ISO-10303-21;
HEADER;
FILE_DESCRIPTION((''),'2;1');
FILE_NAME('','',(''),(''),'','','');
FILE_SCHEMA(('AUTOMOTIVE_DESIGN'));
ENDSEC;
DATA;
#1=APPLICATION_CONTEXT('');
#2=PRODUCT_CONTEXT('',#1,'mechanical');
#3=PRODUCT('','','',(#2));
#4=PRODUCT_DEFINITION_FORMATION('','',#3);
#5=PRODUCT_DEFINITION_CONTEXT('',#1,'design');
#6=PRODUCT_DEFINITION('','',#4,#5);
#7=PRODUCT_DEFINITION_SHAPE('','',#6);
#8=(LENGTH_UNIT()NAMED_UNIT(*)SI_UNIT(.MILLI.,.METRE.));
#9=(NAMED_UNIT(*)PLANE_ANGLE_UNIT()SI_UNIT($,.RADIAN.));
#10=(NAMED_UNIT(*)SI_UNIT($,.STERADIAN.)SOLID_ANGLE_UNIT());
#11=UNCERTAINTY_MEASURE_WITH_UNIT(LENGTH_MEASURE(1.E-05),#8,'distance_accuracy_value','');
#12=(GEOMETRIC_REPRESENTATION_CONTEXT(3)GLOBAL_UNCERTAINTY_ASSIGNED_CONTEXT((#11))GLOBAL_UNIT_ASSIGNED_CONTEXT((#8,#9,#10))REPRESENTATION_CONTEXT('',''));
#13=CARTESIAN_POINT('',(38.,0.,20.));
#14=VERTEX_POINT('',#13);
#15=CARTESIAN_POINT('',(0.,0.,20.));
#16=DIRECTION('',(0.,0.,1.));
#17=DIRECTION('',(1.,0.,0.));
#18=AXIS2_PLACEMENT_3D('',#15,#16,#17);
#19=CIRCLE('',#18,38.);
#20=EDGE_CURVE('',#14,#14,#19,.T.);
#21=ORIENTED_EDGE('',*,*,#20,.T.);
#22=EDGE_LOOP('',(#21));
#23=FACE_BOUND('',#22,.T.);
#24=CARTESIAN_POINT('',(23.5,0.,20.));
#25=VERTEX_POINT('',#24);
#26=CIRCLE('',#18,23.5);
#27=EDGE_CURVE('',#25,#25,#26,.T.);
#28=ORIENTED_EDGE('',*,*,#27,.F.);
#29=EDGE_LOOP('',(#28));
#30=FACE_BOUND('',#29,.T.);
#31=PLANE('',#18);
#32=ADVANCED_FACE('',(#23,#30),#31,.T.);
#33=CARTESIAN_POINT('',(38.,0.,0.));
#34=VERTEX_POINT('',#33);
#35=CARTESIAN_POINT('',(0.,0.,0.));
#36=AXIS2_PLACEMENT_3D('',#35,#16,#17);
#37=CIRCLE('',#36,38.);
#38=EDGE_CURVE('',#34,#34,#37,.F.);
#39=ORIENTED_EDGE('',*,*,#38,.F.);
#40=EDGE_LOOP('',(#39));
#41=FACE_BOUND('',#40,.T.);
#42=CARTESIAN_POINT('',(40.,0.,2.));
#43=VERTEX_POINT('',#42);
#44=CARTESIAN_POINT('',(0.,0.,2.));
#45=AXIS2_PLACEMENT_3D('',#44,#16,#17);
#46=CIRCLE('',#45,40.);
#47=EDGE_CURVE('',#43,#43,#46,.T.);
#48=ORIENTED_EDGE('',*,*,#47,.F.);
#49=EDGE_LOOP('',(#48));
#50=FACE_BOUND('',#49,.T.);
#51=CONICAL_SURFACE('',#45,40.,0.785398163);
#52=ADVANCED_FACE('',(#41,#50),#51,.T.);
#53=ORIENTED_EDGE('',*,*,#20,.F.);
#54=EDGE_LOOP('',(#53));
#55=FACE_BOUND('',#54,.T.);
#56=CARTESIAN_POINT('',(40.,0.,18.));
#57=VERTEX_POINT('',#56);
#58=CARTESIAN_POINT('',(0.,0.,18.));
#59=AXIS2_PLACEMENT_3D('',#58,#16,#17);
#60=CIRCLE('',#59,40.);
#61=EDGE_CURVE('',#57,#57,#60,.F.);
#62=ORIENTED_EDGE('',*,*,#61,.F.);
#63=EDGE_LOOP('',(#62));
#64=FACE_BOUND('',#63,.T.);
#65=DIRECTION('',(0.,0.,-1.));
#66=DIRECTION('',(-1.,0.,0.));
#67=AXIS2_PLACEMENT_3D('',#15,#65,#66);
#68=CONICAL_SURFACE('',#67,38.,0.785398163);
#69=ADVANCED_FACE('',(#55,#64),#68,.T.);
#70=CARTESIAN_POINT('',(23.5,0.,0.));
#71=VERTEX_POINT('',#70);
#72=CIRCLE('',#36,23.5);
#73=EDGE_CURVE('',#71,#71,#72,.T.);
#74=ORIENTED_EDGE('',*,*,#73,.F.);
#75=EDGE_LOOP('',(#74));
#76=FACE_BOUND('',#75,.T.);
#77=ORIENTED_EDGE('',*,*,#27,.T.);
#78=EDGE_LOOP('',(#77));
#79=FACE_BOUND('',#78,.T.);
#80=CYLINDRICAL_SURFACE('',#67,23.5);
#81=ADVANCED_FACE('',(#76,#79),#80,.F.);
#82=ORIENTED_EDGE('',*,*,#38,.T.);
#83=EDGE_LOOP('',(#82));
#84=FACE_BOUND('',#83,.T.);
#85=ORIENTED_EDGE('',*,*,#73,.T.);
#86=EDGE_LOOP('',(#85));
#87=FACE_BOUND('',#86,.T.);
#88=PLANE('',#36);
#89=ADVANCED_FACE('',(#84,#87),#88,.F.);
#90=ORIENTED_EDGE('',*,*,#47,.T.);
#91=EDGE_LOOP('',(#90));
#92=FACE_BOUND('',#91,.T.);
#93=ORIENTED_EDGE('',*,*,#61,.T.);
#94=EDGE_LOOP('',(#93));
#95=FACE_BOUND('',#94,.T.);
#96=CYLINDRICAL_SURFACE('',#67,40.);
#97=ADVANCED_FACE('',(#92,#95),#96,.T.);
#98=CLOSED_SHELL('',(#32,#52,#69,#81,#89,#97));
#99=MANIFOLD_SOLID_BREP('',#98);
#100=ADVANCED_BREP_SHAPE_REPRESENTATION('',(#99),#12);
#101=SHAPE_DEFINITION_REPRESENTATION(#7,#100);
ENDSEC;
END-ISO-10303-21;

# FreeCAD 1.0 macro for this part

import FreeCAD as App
import Part
import Sketcher
Q = App.Units.Quantity


def edges_at(feature, points):
    """Names of the edges that pass closest to the given points."""
    edges = feature.Shape.Edges
    near = lambda p: min(range(len(edges)), key=lambda i: edges[i].distToShape(Part.Vertex(*p))[0])
    return sorted({f"Edge{near(p) + 1}" for p in points})

doc = App.newDocument("Part")
body = doc.addObject("PartDesign::Body", "Body")

# Sketch on XY plane
sketch1 = body.newObject("Sketcher::SketchObject", "Sketch")
sketch1.AttachmentSupport = (doc.getObject("XY_Plane"), [""])
sketch1.MapMode = "FlatFace"
sketch1.addGeometry(Part.Circle(App.Vector(0, 0, 0), App.Vector(0, 0, 1), 40), False)
sketch1.addGeometry(Part.Circle(App.Vector(0, 0, 0), App.Vector(0, 0, 1), 24), False)
sketch1.addConstraint(Sketcher.Constraint("Coincident", 0, 3, -1, 1))
sketch1.addConstraint(Sketcher.Constraint("Coincident", 1, 3, -1, 1))
sketch1.addConstraint(Sketcher.Constraint("Diameter", 0, Q("80 mm")))
sketch1.addConstraint(Sketcher.Constraint("Diameter", 1, Q("47 mm")))
pad1 = body.newObject("PartDesign::Pad", "Pad")
pad1.Profile = sketch1
pad1.Length = 20
doc.recompute()

chamfer = body.newObject("PartDesign::Chamfer", "Chamfer")
chamfer.Base = (pad1, edges_at(pad1, [(-40, 0, 0), (-40, 0, 20)]))
chamfer.Size = 2

doc.recompute()
